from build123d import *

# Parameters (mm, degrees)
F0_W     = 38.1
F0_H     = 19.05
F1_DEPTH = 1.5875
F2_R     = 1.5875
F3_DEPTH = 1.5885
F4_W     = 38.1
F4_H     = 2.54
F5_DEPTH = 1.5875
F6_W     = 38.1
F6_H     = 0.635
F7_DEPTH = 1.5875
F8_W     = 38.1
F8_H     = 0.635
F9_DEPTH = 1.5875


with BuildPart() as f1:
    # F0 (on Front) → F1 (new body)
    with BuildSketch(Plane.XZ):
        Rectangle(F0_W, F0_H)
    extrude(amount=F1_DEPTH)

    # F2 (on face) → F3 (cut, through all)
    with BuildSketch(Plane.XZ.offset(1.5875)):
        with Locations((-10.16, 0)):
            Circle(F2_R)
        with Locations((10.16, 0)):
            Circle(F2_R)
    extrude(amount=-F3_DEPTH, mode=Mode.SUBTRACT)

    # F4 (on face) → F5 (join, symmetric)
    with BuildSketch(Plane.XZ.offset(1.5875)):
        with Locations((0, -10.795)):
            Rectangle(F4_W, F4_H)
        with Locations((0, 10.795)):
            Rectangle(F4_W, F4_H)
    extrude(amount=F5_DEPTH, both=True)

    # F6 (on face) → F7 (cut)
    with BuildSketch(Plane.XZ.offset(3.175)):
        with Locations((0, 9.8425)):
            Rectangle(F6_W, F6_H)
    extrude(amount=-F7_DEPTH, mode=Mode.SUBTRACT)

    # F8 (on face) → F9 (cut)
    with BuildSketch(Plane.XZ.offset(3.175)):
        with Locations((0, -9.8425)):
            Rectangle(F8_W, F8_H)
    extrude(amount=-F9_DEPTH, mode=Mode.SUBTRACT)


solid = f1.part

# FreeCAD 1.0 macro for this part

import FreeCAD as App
import Part
import Sketcher
from FreeCAD import Vector
Q = App.Units.Quantity


def add_polygon(sketch, points):
    """Adds a closed chain of lines whose ends are joined by coincident constraints."""
    first, n = sketch.GeometryCount, len(points)
    for a, b in zip(points, points[1:] + points[:1]):
        sketch.addGeometry(Part.LineSegment(App.Vector(*a, 0), App.Vector(*b, 0)), False)
    for i in range(n):
        sketch.addConstraint(Sketcher.Constraint("Coincident", first + i, 2, first + (i + 1) % n, 1))

doc = App.newDocument("Part")
body = doc.addObject("PartDesign::Body", "Body")

sketch1 = doc.addObject("Sketcher::SketchObject", "Sketch")
body.addObject(sketch1)
sketch1.AttachmentSupport = (doc.XZ_Plane, [""])
sketch1.MapMode = "FlatFace"
add_polygon(sketch1, [(-19, 10), (-19, -10), (19, -10), (19, 10)])
sketch1.addConstraint([
    Sketcher.Constraint("Vertical", 0),
    Sketcher.Constraint("Horizontal", 1),
    Sketcher.Constraint("Vertical", 2),
    Sketcher.Constraint("Horizontal", 3),
    Sketcher.Constraint("Symmetric", 0, 2, 2, 2, -1, 1),
    Sketcher.Constraint("DistanceX", 1, 1, 1, 2, Q("1.5 in")),
    Sketcher.Constraint("DistanceY", 0, 2, 0, 1, Q("0.75 in")),
])
pad1 = doc.addObject("PartDesign::Pad", "Pad")
body.addObject(pad1)
pad1.Profile = sketch1
pad1.Length = Q("0.0625 in")

sketch2 = doc.addObject("Sketcher::SketchObject", "Sketch001")
body.addObject(sketch2)
sketch2.AttachmentSupport = (doc.XZ_Plane, [""])
sketch2.MapMode = "FlatFace"
sketch2.AttachmentOffset = App.Placement(Vector(0, 0, 0.0625 * 25.4), App.Rotation())
sketch2.addGeometry([
    Part.Circle(Vector(-10.2, 0, 0), Vector(0, 0, 1), 1.6),
    Part.Circle(Vector(10.2, 0, 0), Vector(0, 0, 1), 1.6),
], False)
sketch2.addConstraint([
    Sketcher.Constraint("Equal", 0, 1),
    Sketcher.Constraint("Symmetric", 0, 3, 1, 3, -1, 1),
    Sketcher.Constraint("PointOnObject", 0, 3, -1),
    Sketcher.Constraint("Diameter", 0, Q("0.125 in")),
    Sketcher.Constraint("DistanceX", 0, 3, -1, 1, Q("0.4 in")),
])
pocket1 = doc.addObject("PartDesign::Pocket", "Pocket")
body.addObject(pocket1)
pocket1.Profile = sketch2
pocket1.Type = "ThroughAll"

sketch3 = doc.addObject("Sketcher::SketchObject", "Sketch002")
body.addObject(sketch3)
sketch3.AttachmentSupport = (doc.XZ_Plane, [""])
sketch3.MapMode = "FlatFace"
sketch3.AttachmentOffset = App.Placement(Vector(0, 0, 0.0625 * 25.4), App.Rotation())
add_polygon(sketch3, [(-19.1, -9.5), (-19.1, -12.1), (19.1, -12.1), (19.1, -9.5)])
add_polygon(sketch3, [(-19.1, 12.1), (-19.1, 9.5), (19.1, 9.5), (19.1, 12.1)])
sketch3.addConstraint([
    Sketcher.Constraint("Vertical", 0),
    Sketcher.Constraint("Horizontal", 1),
    Sketcher.Constraint("Vertical", 2),
    Sketcher.Constraint("Horizontal", 3),
    Sketcher.Constraint("Vertical", 4),
    Sketcher.Constraint("Horizontal", 5),
    Sketcher.Constraint("Vertical", 6),
    Sketcher.Constraint("Horizontal", 7),
    Sketcher.Constraint("Symmetric", 2, 2, 4, 2, -1, 1),
    Sketcher.Constraint("Symmetric", 0, 2, 6, 2, -1, 1),
    Sketcher.Constraint("Vertical", 3, 2, 4, 2),
    Sketcher.Constraint("DistanceX", 1, 1, 1, 2, Q("1.5 in")),
    Sketcher.Constraint("DistanceY", 0, 2, 0, 1, Q("0.1 in")),
    Sketcher.Constraint("DistanceY", 3, 2, 4, 2, Q("0.75 in")),
])
pad2 = doc.addObject("PartDesign::Pad", "Pad001")
body.addObject(pad2)
pad2.Profile = sketch3
pad2.Length = Q("0.125 in")
pad2.Midplane = True

sketch4 = doc.addObject("Sketcher::SketchObject", "Sketch003")
body.addObject(sketch4)
sketch4.AttachmentSupport = (doc.XZ_Plane, [""])
sketch4.MapMode = "FlatFace"
sketch4.AttachmentOffset = App.Placement(Vector(0, 0, 0.125 * 25.4), App.Rotation())
add_polygon(sketch4, [(-19.1, 10.2), (-19.1, 9.5), (19.1, 9.5), (19.1, 10.2)])
sketch4.addConstraint([
    Sketcher.Constraint("Vertical", 0),
    Sketcher.Constraint("Horizontal", 1),
    Sketcher.Constraint("Vertical", 2),
    Sketcher.Constraint("Horizontal", 3),
    Sketcher.Constraint("DistanceX", 1, 1, 1, 2, Q("1.5 in")),
    Sketcher.Constraint("DistanceY", -1, 1, 2, 2, Q("0.4 in")),
    Sketcher.Constraint("DistanceY", 0, 2, 0, 1, Q("0.025 in")),
    Sketcher.Constraint("DistanceX", 0, 2, -1, 1, Q("0.75 in")),
])
pocket2 = doc.addObject("PartDesign::Pocket", "Pocket001")
body.addObject(pocket2)
pocket2.Profile = sketch4
pocket2.Length = Q("0.0625 in")

sketch5 = doc.addObject("Sketcher::SketchObject", "Sketch004")
body.addObject(sketch5)
sketch5.AttachmentSupport = (doc.XZ_Plane, [""])
sketch5.MapMode = "FlatFace"
sketch5.AttachmentOffset = App.Placement(Vector(0, 0, 0.125 * 25.4), App.Rotation())
add_polygon(sketch5, [(-19.1, -9.5), (-19.1, -10.2), (19.1, -10.2), (19.1, -9.5)])
sketch5.addConstraint([
    Sketcher.Constraint("Vertical", 0),
    Sketcher.Constraint("Horizontal", 1),
    Sketcher.Constraint("Vertical", 2),
    Sketcher.Constraint("Horizontal", 3),
    Sketcher.Constraint("DistanceX", 1, 1, 1, 2, Q("1.5 in")),
    Sketcher.Constraint("DistanceY", 0, 2, -1, 1, Q("0.4 in")),
    Sketcher.Constraint("DistanceY", 0, 2, 0, 1, Q("0.025 in")),
    Sketcher.Constraint("DistanceX", 0, 2, -1, 1, Q("0.75 in")),
])
pocket3 = doc.addObject("PartDesign::Pocket", "Pocket002")
body.addObject(pocket3)
pocket3.Profile = sketch5
pocket3.Length = Q("0.0625 in")

doc.recompute()
